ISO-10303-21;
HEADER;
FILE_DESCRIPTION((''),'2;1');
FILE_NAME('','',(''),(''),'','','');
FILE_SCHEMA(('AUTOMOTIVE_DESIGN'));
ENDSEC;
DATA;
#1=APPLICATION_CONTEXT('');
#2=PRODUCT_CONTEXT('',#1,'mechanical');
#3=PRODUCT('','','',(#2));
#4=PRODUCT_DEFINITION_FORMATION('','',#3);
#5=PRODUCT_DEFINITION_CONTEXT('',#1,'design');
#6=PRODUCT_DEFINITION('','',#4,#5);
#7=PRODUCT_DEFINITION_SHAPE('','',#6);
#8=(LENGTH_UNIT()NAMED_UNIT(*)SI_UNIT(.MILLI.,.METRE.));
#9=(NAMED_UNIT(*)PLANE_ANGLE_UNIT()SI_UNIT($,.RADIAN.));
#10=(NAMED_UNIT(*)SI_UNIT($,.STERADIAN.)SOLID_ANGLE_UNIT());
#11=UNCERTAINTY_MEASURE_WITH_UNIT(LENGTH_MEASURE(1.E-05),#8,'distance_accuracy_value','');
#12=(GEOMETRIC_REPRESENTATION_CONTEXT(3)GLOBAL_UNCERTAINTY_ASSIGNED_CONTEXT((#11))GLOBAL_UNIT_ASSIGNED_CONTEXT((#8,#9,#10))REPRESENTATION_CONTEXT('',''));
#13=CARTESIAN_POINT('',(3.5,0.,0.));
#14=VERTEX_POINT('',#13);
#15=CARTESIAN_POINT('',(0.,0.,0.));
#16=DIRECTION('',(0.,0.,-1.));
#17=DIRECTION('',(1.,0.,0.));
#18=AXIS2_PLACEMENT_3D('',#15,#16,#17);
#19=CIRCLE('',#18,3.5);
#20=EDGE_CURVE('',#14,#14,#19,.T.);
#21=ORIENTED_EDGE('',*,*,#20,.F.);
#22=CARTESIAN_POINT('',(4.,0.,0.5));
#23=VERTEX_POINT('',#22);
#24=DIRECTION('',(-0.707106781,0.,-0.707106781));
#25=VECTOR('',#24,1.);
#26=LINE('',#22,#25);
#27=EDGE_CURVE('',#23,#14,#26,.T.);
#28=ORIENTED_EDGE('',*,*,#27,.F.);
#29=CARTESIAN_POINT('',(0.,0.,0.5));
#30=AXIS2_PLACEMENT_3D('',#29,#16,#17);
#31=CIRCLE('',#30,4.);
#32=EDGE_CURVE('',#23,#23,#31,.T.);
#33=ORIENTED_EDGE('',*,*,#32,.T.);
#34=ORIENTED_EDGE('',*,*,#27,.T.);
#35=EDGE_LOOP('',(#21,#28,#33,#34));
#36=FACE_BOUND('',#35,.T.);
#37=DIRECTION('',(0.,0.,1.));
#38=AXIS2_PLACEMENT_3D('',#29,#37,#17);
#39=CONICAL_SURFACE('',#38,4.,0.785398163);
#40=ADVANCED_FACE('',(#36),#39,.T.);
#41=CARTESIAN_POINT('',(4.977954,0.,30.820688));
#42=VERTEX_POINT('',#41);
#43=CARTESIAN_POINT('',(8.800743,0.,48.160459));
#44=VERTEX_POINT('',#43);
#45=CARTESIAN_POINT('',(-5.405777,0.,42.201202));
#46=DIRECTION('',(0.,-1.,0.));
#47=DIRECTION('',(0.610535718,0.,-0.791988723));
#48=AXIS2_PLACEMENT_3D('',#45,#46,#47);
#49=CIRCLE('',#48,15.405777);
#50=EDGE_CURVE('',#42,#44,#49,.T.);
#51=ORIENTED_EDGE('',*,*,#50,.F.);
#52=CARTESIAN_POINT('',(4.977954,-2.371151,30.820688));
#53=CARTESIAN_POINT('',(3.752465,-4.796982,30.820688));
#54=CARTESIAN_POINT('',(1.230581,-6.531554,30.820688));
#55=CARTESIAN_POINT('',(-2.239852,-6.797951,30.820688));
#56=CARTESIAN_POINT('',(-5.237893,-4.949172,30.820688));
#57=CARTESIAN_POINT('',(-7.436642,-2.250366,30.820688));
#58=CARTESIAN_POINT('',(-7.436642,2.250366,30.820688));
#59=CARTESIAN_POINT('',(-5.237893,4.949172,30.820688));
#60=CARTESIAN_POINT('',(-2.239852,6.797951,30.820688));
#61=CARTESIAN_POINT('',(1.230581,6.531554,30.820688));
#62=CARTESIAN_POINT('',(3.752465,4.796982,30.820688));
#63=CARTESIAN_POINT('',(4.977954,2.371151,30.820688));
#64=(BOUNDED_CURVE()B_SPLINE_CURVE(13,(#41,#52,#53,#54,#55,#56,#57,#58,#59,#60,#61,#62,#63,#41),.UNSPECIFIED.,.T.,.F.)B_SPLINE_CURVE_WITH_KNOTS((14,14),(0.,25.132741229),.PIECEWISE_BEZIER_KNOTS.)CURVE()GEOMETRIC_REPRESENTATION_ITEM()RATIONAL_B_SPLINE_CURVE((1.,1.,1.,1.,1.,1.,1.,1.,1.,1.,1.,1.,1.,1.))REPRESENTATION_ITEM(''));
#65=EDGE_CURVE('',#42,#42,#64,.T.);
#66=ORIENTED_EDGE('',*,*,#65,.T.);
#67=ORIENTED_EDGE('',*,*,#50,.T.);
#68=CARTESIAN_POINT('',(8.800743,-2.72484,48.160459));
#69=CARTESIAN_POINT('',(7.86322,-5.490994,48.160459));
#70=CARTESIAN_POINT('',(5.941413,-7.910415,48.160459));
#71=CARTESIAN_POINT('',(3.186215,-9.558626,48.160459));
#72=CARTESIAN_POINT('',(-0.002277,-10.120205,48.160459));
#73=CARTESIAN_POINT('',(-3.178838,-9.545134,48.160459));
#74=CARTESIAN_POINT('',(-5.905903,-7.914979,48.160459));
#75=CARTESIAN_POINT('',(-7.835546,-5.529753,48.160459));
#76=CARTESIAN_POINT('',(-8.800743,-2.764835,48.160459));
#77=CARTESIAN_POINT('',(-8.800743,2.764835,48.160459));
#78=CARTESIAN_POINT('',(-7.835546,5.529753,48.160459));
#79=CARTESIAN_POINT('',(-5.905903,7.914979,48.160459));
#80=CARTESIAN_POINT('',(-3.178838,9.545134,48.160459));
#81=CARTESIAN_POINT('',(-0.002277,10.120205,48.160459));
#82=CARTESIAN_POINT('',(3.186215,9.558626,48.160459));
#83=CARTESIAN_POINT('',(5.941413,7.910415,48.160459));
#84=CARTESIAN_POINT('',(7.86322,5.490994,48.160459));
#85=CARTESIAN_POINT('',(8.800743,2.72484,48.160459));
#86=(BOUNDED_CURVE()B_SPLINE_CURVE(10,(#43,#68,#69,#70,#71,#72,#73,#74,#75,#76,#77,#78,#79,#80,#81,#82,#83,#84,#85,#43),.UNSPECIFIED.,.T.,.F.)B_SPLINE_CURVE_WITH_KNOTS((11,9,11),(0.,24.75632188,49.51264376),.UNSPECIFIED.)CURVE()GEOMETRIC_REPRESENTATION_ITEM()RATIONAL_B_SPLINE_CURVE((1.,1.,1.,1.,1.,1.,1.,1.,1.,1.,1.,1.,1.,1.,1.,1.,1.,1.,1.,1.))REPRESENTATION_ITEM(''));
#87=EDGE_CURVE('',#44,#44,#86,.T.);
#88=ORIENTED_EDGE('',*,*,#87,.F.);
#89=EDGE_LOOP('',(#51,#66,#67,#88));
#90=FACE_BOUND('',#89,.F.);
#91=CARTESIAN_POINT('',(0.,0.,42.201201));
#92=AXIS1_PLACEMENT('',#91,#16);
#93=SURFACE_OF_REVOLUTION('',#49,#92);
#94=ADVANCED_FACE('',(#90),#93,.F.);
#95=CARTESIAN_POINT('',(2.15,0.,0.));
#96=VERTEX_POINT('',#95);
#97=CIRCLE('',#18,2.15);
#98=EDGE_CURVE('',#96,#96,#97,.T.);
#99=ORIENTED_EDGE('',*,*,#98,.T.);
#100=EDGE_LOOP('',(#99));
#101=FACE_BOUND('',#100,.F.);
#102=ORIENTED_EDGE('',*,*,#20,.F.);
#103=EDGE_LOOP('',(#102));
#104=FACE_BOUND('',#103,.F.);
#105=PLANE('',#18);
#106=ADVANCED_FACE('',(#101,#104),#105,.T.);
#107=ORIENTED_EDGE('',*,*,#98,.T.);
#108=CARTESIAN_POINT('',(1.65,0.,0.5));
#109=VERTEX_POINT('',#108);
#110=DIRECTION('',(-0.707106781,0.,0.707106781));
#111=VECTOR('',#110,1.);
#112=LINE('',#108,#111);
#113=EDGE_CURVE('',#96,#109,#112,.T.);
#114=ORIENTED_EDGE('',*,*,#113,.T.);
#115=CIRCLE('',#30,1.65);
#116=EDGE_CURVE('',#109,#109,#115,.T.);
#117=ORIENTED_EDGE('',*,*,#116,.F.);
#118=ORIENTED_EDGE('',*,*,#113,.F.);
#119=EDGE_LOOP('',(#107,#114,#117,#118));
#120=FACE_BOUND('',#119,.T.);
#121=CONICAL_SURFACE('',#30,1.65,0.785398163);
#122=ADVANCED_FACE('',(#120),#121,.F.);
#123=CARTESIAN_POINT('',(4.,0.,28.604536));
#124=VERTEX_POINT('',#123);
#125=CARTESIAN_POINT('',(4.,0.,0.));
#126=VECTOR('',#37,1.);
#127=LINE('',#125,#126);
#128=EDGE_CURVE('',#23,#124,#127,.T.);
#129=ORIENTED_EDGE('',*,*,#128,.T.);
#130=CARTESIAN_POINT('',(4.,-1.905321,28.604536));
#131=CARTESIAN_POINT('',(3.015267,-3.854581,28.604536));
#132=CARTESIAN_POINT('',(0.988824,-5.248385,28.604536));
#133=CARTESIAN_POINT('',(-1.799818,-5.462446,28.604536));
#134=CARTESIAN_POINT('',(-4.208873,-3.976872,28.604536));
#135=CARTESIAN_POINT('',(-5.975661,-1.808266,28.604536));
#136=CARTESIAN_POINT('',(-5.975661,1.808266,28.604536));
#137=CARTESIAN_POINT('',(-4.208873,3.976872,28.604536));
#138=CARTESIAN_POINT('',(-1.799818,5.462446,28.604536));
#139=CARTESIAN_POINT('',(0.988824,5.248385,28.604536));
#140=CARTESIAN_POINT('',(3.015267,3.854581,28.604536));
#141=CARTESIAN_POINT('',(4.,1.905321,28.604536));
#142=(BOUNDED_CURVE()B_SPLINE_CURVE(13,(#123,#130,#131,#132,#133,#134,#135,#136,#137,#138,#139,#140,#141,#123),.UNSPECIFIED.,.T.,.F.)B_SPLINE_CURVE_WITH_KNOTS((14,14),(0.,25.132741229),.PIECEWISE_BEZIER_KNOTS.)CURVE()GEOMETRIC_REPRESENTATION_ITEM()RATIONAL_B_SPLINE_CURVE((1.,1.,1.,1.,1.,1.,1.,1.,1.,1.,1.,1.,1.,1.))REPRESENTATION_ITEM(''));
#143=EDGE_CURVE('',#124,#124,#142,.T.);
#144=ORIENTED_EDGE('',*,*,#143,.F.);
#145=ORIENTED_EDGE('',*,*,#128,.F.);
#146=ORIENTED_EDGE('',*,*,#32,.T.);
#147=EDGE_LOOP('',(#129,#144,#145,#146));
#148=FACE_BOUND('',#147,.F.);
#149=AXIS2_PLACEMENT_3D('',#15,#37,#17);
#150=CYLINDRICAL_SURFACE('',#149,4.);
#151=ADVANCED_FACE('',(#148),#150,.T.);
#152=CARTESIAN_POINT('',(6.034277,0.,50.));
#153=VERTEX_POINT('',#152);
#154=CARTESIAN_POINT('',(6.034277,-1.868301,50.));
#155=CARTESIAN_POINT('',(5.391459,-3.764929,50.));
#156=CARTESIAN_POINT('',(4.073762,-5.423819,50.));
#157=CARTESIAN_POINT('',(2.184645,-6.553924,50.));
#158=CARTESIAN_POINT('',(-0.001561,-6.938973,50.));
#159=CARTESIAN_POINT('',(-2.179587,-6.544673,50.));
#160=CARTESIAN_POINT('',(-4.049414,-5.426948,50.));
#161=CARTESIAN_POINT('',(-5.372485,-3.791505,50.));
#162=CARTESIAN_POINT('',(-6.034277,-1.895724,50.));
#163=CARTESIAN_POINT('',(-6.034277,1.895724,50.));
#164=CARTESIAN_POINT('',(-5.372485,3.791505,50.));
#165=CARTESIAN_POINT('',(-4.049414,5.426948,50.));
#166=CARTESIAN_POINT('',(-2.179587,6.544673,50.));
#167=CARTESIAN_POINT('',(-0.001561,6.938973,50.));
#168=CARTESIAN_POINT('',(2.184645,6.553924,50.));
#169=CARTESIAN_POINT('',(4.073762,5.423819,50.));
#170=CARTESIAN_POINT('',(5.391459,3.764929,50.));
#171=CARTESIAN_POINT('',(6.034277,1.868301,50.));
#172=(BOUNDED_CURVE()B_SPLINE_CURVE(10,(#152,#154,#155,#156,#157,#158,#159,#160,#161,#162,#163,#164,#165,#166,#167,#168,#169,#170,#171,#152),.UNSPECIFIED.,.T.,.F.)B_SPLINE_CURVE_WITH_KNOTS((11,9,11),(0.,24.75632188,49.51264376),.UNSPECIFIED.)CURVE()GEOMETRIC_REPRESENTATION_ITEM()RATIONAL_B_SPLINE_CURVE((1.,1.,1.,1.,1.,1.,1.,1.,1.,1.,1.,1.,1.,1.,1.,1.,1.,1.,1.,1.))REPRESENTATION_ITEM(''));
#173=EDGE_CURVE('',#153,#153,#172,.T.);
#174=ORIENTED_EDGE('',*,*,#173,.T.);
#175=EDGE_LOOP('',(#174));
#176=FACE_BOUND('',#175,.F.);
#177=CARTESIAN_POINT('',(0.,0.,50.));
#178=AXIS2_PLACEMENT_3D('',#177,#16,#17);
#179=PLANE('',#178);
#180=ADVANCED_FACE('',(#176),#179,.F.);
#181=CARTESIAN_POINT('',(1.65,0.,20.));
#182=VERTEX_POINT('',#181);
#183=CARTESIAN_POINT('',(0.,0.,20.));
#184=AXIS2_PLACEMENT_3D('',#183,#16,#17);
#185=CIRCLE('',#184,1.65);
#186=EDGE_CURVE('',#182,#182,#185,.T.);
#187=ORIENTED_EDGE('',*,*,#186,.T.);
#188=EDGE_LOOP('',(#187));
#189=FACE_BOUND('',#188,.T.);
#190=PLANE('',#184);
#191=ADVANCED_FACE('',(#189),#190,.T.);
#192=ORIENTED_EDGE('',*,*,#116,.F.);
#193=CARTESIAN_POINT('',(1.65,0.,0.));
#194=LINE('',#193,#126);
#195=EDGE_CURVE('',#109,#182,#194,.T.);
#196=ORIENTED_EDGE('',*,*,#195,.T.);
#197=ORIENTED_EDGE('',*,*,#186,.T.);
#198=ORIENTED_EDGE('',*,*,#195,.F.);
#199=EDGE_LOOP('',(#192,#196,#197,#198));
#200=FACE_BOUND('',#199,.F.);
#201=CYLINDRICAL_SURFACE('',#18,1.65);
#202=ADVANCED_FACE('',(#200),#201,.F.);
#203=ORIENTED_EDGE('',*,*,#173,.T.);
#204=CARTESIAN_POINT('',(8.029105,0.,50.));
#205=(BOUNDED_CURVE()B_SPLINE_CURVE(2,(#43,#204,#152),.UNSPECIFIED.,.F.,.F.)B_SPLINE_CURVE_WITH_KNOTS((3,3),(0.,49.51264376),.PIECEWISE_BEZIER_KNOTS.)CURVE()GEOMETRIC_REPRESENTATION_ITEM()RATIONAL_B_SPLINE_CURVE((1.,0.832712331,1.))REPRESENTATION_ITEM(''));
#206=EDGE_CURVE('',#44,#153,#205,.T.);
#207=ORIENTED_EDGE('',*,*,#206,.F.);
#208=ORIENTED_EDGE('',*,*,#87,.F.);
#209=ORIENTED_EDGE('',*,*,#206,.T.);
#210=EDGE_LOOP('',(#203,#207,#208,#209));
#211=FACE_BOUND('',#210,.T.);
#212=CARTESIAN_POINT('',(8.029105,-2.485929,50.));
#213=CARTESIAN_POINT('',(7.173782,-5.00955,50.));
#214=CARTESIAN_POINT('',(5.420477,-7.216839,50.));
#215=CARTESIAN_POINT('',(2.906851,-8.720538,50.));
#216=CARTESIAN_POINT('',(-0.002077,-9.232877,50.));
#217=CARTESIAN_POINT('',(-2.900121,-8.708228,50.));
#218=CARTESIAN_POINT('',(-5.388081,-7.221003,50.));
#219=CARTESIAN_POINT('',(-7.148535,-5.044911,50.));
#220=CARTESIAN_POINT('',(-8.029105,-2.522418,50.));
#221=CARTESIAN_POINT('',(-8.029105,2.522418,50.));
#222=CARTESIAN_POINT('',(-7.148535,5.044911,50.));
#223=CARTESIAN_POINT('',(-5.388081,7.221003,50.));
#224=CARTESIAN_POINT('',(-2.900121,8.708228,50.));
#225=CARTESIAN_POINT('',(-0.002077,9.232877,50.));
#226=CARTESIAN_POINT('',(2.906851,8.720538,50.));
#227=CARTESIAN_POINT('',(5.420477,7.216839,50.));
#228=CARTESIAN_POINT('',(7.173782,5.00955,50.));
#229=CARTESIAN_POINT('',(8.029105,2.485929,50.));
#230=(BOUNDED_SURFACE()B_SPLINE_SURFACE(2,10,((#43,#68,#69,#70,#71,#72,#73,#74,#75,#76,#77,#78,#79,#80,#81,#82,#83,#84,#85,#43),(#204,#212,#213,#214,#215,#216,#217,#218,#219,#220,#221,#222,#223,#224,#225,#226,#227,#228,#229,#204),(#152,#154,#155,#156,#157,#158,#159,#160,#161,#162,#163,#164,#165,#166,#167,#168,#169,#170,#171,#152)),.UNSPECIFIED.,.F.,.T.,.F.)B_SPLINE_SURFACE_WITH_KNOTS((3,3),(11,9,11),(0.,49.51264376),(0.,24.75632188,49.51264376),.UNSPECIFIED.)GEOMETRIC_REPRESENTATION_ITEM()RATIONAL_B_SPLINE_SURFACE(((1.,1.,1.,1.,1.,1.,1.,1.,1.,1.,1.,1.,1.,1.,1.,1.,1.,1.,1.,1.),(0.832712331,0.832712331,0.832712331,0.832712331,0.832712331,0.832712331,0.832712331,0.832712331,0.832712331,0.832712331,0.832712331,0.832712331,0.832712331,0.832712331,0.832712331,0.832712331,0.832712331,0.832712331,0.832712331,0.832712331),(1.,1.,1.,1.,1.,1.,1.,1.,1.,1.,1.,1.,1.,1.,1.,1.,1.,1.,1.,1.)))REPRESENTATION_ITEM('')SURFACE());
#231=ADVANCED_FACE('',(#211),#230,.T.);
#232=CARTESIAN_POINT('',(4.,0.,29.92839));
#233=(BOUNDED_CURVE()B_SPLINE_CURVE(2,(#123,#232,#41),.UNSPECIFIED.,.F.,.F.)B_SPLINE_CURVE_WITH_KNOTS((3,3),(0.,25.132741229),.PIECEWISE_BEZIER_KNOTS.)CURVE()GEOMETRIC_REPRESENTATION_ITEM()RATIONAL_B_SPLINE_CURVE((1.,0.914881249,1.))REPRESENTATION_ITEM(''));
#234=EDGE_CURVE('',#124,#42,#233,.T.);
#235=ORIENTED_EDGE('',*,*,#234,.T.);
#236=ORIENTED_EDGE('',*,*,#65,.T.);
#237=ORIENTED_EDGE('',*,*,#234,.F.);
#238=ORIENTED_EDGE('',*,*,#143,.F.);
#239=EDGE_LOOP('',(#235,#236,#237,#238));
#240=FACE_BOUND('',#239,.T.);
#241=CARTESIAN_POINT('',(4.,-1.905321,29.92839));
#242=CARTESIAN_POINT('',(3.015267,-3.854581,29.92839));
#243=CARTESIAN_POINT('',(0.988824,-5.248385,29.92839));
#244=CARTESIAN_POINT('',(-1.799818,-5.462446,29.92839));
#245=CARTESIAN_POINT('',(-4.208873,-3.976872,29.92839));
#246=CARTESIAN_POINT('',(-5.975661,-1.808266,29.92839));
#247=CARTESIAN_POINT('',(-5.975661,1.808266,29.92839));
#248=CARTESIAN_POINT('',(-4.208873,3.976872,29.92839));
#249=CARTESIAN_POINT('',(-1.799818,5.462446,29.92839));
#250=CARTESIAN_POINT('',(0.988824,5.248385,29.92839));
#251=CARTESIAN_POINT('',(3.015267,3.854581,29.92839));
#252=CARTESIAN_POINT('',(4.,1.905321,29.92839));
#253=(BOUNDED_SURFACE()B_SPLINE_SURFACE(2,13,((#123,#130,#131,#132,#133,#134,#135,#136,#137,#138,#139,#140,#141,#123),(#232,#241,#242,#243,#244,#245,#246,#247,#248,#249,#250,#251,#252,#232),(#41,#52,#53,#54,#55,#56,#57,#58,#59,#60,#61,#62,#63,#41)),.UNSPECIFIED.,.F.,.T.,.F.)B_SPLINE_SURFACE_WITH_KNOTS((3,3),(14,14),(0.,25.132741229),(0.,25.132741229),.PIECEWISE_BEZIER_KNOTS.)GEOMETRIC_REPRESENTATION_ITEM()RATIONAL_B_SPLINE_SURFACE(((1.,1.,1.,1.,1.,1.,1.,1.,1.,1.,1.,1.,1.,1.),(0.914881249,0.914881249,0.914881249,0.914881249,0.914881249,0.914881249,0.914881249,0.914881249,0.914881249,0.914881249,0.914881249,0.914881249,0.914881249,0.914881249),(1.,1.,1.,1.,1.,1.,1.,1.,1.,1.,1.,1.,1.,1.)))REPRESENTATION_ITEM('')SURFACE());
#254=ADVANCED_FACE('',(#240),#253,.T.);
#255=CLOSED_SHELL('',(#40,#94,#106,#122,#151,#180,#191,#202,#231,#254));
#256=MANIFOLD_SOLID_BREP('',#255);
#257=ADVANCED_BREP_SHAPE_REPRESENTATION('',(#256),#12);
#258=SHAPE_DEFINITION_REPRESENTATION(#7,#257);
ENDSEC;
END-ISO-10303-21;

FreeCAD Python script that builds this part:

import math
import FreeCAD as App
import Part
import Sketcher


def edges_at(feature, points):
    """Names of the edges that pass closest to the given points."""
    edges = feature.Shape.Edges
    near = lambda p: min(range(len(edges)), key=lambda i: edges[i].distToShape(Part.Vertex(*p))[0])
    return sorted({f"Edge{near(p) + 1}" for p in points})

doc = App.newDocument("Part")
body = doc.addObject("PartDesign::Body", "Body")

sketch1 = doc.addObject("Sketcher::SketchObject", "Sketch")
body.addObject(sketch1)
sketch1.AttachmentSupport = (doc.XZ_Plane, [""])
sketch1.MapMode = "FlatFace"
sketch1.addGeometry(Part.LineSegment(App.Vector(0, 50, 0), App.Vector(0, 0, 0)), False)
sketch1.addGeometry(Part.LineSegment(App.Vector(0, 0, 0), App.Vector(4, 0, 0)), False)
sketch1.addGeometry(Part.LineSegment(App.Vector(4, 0, 0), App.Vector(4, 30, 0)), False)
sketch1.addGeometry(Part.ArcOfCircle(Part.Circle(App.Vector(-5.4, 42.2, 0), App.Vector(0, 0, 1), 15.4), math.radians(-52), math.radians(30)), False)
sketch1.addGeometry(Part.LineSegment(App.Vector(7.9, 50, 0), App.Vector(0, 50, 0)), False)
sketch1.addConstraint(Sketcher.Constraint("Coincident", 0, 2, 1, 1))
sketch1.addConstraint(Sketcher.Constraint("Coincident", 1, 2, 2, 1))
sketch1.addConstraint(Sketcher.Constraint("Coincident", 2, 2, 3, 1))
sketch1.addConstraint(Sketcher.Constraint("Coincident", 3, 2, 4, 1))
sketch1.addConstraint(Sketcher.Constraint("Coincident", 4, 2, 0, 1))
sketch1.addConstraint(Sketcher.Constraint("Vertical", 0))
sketch1.addConstraint(Sketcher.Constraint("Horizontal", 1))
sketch1.addConstraint(Sketcher.Constraint("Vertical", 2))
sketch1.addConstraint(Sketcher.Constraint("Horizontal", 4))
sketch1.addConstraint(Sketcher.Constraint("Coincident", 0, 2, -1, 1))
sketch1.addConstraint(Sketcher.Constraint("DistanceX", 1, 1, 1, 2, 4.0))
sketch1.addConstraint(Sketcher.Constraint("DistanceY", 0, 2, 0, 1, 50.0))
sketch1.addConstraint(Sketcher.Constraint("DistanceY", 2, 1, 2, 2, 30.0))
sketch1.addConstraint(Sketcher.Constraint("Radius", 3, 15.405777))
sketch1.addConstraint(Sketcher.Constraint("DistanceX", 4, 2, 4, 1, 7.880182))
revolution = doc.addObject("PartDesign::Revolution", "Revolution")
body.addObject(revolution)
revolution.Profile = sketch1
revolution.ReferenceAxis = (sketch1, ["V_Axis"])
revolution.Angle = 360
doc.recompute()

fillet = doc.addObject("PartDesign::Fillet", "Fillet")
body.addObject(fillet)
fillet.Base = (revolution, edges_at(revolution, [(-7.88, 0, 50), (-4, 0, 30)]))
fillet.Radius = 3

sketch2 = doc.addObject("Sketcher::SketchObject", "Sketch001")
body.addObject(sketch2)
sketch2.AttachmentSupport = (doc.XY_Plane, [""])
sketch2.MapMode = "FlatFace"
sketch2.addGeometry(Part.Circle(App.Vector(0, 0, 0), App.Vector(0, 0, 1), 1.6), False)
sketch2.addConstraint(Sketcher.Constraint("Coincident", 0, 3, -1, 1))
sketch2.addConstraint(Sketcher.Constraint("Diameter", 0, 3.3))
pocket1 = doc.addObject("PartDesign::Pocket", "Pocket")
body.addObject(pocket1)
pocket1.Profile = sketch2
pocket1.Length = 20
pocket1.Reversed = True
doc.recompute()

chamfer = doc.addObject("PartDesign::Chamfer", "Chamfer")
body.addObject(chamfer)
chamfer.Base = (pocket1, edges_at(pocket1, [(-1.65, 0, 0), (-4, 0, 0)]))
chamfer.Size = 0.5

doc.recompute()
